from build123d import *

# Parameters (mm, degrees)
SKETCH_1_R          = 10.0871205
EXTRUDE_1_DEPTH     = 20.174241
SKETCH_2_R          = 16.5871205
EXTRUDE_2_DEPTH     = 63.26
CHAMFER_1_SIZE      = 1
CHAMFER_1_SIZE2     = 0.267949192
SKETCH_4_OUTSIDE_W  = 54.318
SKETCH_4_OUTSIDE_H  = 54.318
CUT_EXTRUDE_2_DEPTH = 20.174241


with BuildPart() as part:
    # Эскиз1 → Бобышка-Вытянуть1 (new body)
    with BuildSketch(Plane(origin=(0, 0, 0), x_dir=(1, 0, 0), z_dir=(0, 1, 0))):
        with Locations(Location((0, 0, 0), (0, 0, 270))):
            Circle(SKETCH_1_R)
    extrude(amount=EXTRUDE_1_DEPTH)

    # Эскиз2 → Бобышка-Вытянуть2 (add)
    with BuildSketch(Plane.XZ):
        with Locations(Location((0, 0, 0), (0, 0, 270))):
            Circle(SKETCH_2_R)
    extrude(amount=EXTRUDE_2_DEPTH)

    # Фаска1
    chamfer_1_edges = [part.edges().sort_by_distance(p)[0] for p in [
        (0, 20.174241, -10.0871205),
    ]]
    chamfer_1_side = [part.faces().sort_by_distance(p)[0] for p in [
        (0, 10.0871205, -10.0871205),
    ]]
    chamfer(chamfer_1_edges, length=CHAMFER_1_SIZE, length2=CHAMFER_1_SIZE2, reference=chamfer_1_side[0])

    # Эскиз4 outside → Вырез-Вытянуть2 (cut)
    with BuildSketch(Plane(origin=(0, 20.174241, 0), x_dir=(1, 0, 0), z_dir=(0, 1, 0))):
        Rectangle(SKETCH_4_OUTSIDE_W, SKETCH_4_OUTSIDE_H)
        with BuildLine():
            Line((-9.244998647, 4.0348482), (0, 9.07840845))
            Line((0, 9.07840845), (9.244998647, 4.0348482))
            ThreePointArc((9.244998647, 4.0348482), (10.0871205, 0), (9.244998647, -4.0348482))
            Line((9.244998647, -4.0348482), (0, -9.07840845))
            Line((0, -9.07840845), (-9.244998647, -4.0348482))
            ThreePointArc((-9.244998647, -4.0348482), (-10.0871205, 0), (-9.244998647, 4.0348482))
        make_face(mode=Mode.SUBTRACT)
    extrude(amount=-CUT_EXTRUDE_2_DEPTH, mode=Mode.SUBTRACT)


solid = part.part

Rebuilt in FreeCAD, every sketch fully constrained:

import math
import FreeCAD as App
import Part
import Sketcher
Q = App.Units.Quantity


def edges_at(feature, points):
    """Names of the edges that pass closest to the given points."""
    edges = feature.Shape.Edges
    near = lambda p: min(range(len(edges)), key=lambda i: edges[i].distToShape(Part.Vertex(*p))[0])
    return sorted({f"Edge{near(p) + 1}" for p in points})

doc = App.newDocument("Part")
body = doc.addObject("PartDesign::Body", "Body")

sketch1 = doc.addObject("Sketcher::SketchObject", "Sketch")
body.addObject(sketch1)
sketch1.AttachmentSupport = (doc.XZ_Plane, [""])
sketch1.MapMode = "FlatFace"
sketch1.addGeometry(Part.Circle(App.Vector(0, 0, 0), App.Vector(0, 0, 1), 10), False)
sketch1.addConstraint([
    Sketcher.Constraint("Coincident", 0, 3, -1, 1),
    Sketcher.Constraint("Diameter", 0, Q("20.174241 mm")),
])
pad1 = doc.addObject("PartDesign::Pad", "Pad")
body.addObject(pad1)
pad1.Profile = sketch1
pad1.Length = 20.174241
pad1.Reversed = True

sketch2 = doc.addObject("Sketcher::SketchObject", "Sketch001")
body.addObject(sketch2)
sketch2.AttachmentSupport = (doc.XZ_Plane, [""])
sketch2.MapMode = "FlatFace"
sketch2.addGeometry(Part.Circle(App.Vector(0, 0, 0), App.Vector(0, 0, 1), 17), False)
sketch2.addConstraint([
    Sketcher.Constraint("Coincident", 0, 3, -1, 1),
    Sketcher.Constraint("Diameter", 0, Q("33.174241 mm")),
])
pad2 = doc.addObject("PartDesign::Pad", "Pad001")
body.addObject(pad2)
pad2.Profile = sketch2
pad2.Length = 63.26
doc.recompute()

chamfer = doc.addObject("PartDesign::Chamfer", "Chamfer")
body.addObject(chamfer)
chamfer.Base = (pad2, edges_at(pad2, [(0, 20.174, -10.087)]))
chamfer.ChamferType = "Two distances"
chamfer.Size = 1
chamfer.Size2 = 0.267949

sketch3 = doc.addObject("Sketcher::SketchObject", "Sketch002")
body.addObject(sketch3)
sketch3.AttachmentSupport = (doc.XZ_Plane, [""])
sketch3.MapMode = "FlatFace"
sketch3.AttachmentOffset = App.Placement(App.Vector(0, 0, -20.174241), App.Rotation())
sketch3.addGeometry([
    Part.LineSegment(App.Vector(-27, -27, 0), App.Vector(-27, 27, 0)),
    Part.LineSegment(App.Vector(-27, 27, 0), App.Vector(27, 27, 0)),
    Part.LineSegment(App.Vector(27, 27, 0), App.Vector(27, -27, 0)),
    Part.LineSegment(App.Vector(27, -27, 0), App.Vector(-27, -27, 0)),
    Part.ArcOfCircle(Part.Circle(App.Vector(0, 0, 0), App.Vector(0, 0, 1), 10), math.radians(156), math.radians(204)),
    Part.LineSegment(App.Vector(-9, -4, 0), App.Vector(0, -9, 0)),
    Part.LineSegment(App.Vector(0, -9, 0), App.Vector(9, -4, 0)),
    Part.ArcOfCircle(Part.Circle(App.Vector(0, 0, 0), App.Vector(0, 0, 1), 10), math.radians(-24), math.radians(24)),
    Part.LineSegment(App.Vector(9, 4, 0), App.Vector(0, 9, 0)),
    Part.LineSegment(App.Vector(0, 9, 0), App.Vector(-9, 4, 0)),
], False)
sketch3.addConstraint([
    Sketcher.Constraint("Coincident", 0, 2, 1, 1),
    Sketcher.Constraint("Coincident", 1, 2, 2, 1),
    Sketcher.Constraint("Coincident", 2, 2, 3, 1),
    Sketcher.Constraint("Coincident", 3, 2, 0, 1),
    Sketcher.Constraint("Coincident", 4, 2, 5, 1),
    Sketcher.Constraint("Coincident", 5, 2, 6, 1),
    Sketcher.Constraint("Coincident", 6, 2, 7, 1),
    Sketcher.Constraint("Coincident", 7, 2, 8, 1),
    Sketcher.Constraint("Coincident", 8, 2, 9, 1),
    Sketcher.Constraint("Coincident", 9, 2, 4, 1),
    Sketcher.Constraint("Vertical", 0),
    Sketcher.Constraint("Horizontal", 1),
    Sketcher.Constraint("Vertical", 2),
    Sketcher.Constraint("Horizontal", 3),
    Sketcher.Constraint("Coincident", 4, 3, -1, 1),
    Sketcher.Constraint("Coincident", 7, 3, -1, 1),
    Sketcher.Constraint("Equal", 4, 7),
    Sketcher.Constraint("Symmetric", 0, 2, 2, 2, -1, 1),
    Sketcher.Constraint("Symmetric", 5, 2, 8, 2, -1, 1),
    Sketcher.Constraint("PointOnObject", 5, 2, -2),
    Sketcher.Constraint("Parallel", 5, 8),
    Sketcher.Constraint("Parallel", 6, 9),
    Sketcher.Constraint("Horizontal", 4, 2, 6, 2),
    Sketcher.Constraint("Equal", 3, 0),
    Sketcher.Constraint("DistanceX", 1, 1, 1, 2, Q("54.318 mm")),
    Sketcher.Constraint("Radius", 4, Q("10.08712 mm")),
    Sketcher.Constraint("DistanceX", 4, 2, -1, 1, Q("9.244999 mm")),
    Sketcher.Constraint("DistanceY", 5, 2, -1, 1, Q("9.078408 mm")),
])
pocket1 = doc.addObject("PartDesign::Pocket", "Pocket")
body.addObject(pocket1)
pocket1.Profile = sketch3
pocket1.Length = 20.174241
pocket1.Reversed = True

doc.recompute()
